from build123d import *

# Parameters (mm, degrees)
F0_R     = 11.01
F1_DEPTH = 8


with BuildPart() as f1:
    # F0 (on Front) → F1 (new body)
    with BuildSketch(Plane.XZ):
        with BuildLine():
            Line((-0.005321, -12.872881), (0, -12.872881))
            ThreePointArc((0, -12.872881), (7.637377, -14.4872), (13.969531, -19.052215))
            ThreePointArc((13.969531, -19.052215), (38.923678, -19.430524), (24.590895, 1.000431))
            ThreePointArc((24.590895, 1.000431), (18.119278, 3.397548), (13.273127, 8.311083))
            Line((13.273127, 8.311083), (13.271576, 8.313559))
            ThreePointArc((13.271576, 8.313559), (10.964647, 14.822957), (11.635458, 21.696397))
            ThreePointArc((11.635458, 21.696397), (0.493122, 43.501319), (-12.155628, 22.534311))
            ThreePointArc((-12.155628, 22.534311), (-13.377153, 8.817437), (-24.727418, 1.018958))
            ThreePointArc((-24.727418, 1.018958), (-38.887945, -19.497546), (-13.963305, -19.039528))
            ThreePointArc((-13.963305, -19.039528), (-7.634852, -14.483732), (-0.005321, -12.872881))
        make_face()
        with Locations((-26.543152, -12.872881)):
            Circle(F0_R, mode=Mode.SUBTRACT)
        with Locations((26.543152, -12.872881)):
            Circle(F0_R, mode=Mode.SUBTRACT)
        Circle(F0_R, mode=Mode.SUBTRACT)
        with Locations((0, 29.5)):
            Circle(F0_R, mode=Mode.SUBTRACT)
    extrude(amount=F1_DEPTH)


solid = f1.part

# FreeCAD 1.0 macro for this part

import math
import FreeCAD as App
import Part
import Sketcher
from FreeCAD import Vector

doc = App.newDocument("Part")
params = doc.addObject("Spreadsheet::Sheet", "Params")
for row, (alias, value) in enumerate([
    ("sketch1_diameter", "22.02 mm"),
    ("sketch1_radius", "14.01 mm"),
    ("pad1_length", "8 mm"),
], start=1):
    params.set(f"A{row}", alias)
    params.set(f"B{row}", "=" + value)
    params.setAlias(f"B{row}", alias)

body = doc.addObject("PartDesign::Body", "Body")

sketch1 = body.newObject("Sketcher::SketchObject", "Sketch")
sketch1.AttachmentSupport = (doc.getObject("XZ_Plane"), [""])
sketch1.MapMode = "FlatFace"
sketch1.addGeometry(Part.LineSegment(Vector(-0.005321, -12.872881, 0), Vector(0, -12.872881, 0)), False)
sketch1.addGeometry(Part.ArcOfCircle(Part.Circle(Vector(-0.00266, -31.758919, 0), Vector(0, 0, 1), 18.886038), math.radians(42.284268), math.radians(89.991931)), False)
sketch1.addGeometry(Part.ArcOfCircle(Part.Circle(Vector(26.543152, -12.872881, 0), Vector(0, 0, 1), 14.01), math.radians(-153.828089), math.radians(98.010084)), False)
sketch1.addGeometry(Part.ArcOfCircle(Part.Circle(Vector(26.745689, 16.75227, 0), Vector(0, 0, 1), 15.89854), math.radians(-147.930942), math.radians(-97.789505)), False)
sketch1.addGeometry(Part.LineSegment(Vector(13.273127, 8.311083, 0), Vector(13.271576, 8.313559, 0)), False)
sketch1.addGeometry(Part.ArcOfCircle(Part.Circle(Vector(26.745684, 16.752266, 0), Vector(0, 0, 1), 15.898533), math.radians(161.881681), math.radians(212.058526)), False)
sketch1.addGeometry(Part.ArcOfCircle(Part.Circle(Vector(0, 29.5, 0), Vector(0, 0, 1), 14.01), math.radians(-33.848742), math.radians(209.814533)), False)
sketch1.addGeometry(Part.ArcOfCircle(Part.Circle(Vector(-27.335005, 16.973249, 0), Vector(0, 0, 1), 16.16598), math.radians(-80.717586), math.radians(20.120632)), False)
sketch1.addGeometry(Part.ArcOfCircle(Part.Circle(Vector(-26.543152, -12.872881, 0), Vector(0, 0, 1), 14.01), math.radians(82.553363), math.radians(333.885886)), False)
sketch1.addGeometry(Part.ArcOfCircle(Part.Circle(Vector(-0.002658, -31.75893, 0), Vector(0, 0, 1), 18.88605), math.radians(90.00808), math.radians(137.66367)), False)
sketch1.addGeometry(Part.Circle(Vector(-26.543152, -12.872881, 0), Vector(0, 0, 1), 11.01), False)
sketch1.addGeometry(Part.Circle(Vector(26.543152, -12.872881, 0), Vector(0, 0, 1), 11.01), False)
sketch1.addGeometry(Part.Circle(Vector(0, 0, 0), Vector(0, 0, 1), 11.01), False)
sketch1.addGeometry(Part.Circle(Vector(0, 29.5, 0), Vector(0, 0, 1), 11.01), False)
sketch1.addConstraint(Sketcher.Constraint("Coincident", 0, 2, 1, 2))
sketch1.addConstraint(Sketcher.Constraint("Coincident", 1, 1, 2, 1))
sketch1.addConstraint(Sketcher.Constraint("Coincident", 2, 2, 3, 2))
sketch1.addConstraint(Sketcher.Constraint("Coincident", 3, 1, 4, 1))
sketch1.addConstraint(Sketcher.Constraint("Coincident", 4, 2, 5, 2))
sketch1.addConstraint(Sketcher.Constraint("Coincident", 5, 1, 6, 1))
sketch1.addConstraint(Sketcher.Constraint("Coincident", 6, 2, 7, 2))
sketch1.addConstraint(Sketcher.Constraint("Coincident", 7, 1, 8, 1))
sketch1.addConstraint(Sketcher.Constraint("Coincident", 8, 2, 9, 2))
sketch1.addConstraint(Sketcher.Constraint("Coincident", 9, 1, 0, 1))
sketch1.addConstraint(Sketcher.Constraint("Horizontal", 0))
sketch1.addConstraint(Sketcher.Constraint("Coincident", 12, 3, -1, 1))
sketch1.addConstraint(Sketcher.Constraint("Coincident", 5, 3, 3, 3))
sketch1.addConstraint(Sketcher.Constraint("Coincident", 10, 3, 8, 3))
sketch1.addConstraint(Sketcher.Constraint("Coincident", 11, 3, 2, 3))
sketch1.addConstraint(Sketcher.Constraint("Coincident", 13, 3, 6, 3))
sketch1.addConstraint(Sketcher.Constraint("Equal", 2, 6))
sketch1.addConstraint(Sketcher.Constraint("Equal", 6, 8))
sketch1.addConstraint(Sketcher.Constraint("Equal", 10, 11))
sketch1.addConstraint(Sketcher.Constraint("Equal", 11, 12))
sketch1.addConstraint(Sketcher.Constraint("Equal", 12, 13))
sketch1.addConstraint(Sketcher.Constraint("Symmetric", 2, 3, 8, 3, -2))
sketch1.addConstraint(Sketcher.Constraint("PointOnObject", 6, 3, -2))
sketch1.addConstraint(Sketcher.Constraint("PointOnObject", 0, 2, -2))
sketch1.addConstraint(Sketcher.Constraint("Horizontal", 11, 3, 0, 2))
sketch1.addConstraint(Sketcher.Constraint("Diameter", 10, 22.02))
sketch1.addConstraint(Sketcher.Constraint("Radius", 2, 14.01))
sketch1.addConstraint(Sketcher.Constraint("DistanceY", -1, 1, 6, 3, 29.5))
sketch1.addConstraint(Sketcher.Constraint("Radius", 1, 18.886038))
sketch1.addConstraint(Sketcher.Constraint("Radius", 3, 15.89854))
sketch1.addConstraint(Sketcher.Constraint("Radius", 7, 16.16598))
sketch1.addConstraint(Sketcher.Constraint("Radius", 9, 18.88605))
sketch1.addConstraint(Sketcher.Constraint("Radius", 5, 15.898533))
sketch1.addConstraint(Sketcher.Constraint("DistanceX", 0, 1, 0, 2, 0.005321))
sketch1.addConstraint(Sketcher.Constraint("DistanceY", 9, 3, 3, 3, 48.511201))
sketch1.addConstraint(Sketcher.Constraint("Distance", 4, 0.002922))
sketch1.addConstraint(Sketcher.Constraint("DistanceX", 1, 3, -1, 1, 0.00266))
sketch1.addConstraint(Sketcher.Constraint("DistanceY", 1, 3, -1, 1, 31.758919))
sketch1.addConstraint(Sketcher.Constraint("DistanceX", -1, 1, 2, 3, 26.543152))
sketch1.addConstraint(Sketcher.Constraint("DistanceX", -1, 1, 3, 3, 26.745689))
sketch1.addConstraint(Sketcher.Constraint("DistanceY", -1, 1, 7, 3, 16.973249))
sketch1.addConstraint(Sketcher.Constraint("DistanceY", -1, 1, 4, 2, 8.313559))
sketch1.addConstraint(Sketcher.Constraint("DistanceY", -1, 1, 6, 2, 22.534311))
sketch1.addConstraint(Sketcher.Constraint("DistanceX", 9, 3, 2, 3, 26.54581))
sketch1.setExpression("Constraints[25]", "Params.sketch1_diameter")
sketch1.setExpression("Constraints[26]", "Params.sketch1_radius")
pad1 = body.newObject("PartDesign::Pad", "Pad")
pad1.Profile = sketch1
pad1.setExpression("Length", "Params.pad1_length")

doc.recompute()
